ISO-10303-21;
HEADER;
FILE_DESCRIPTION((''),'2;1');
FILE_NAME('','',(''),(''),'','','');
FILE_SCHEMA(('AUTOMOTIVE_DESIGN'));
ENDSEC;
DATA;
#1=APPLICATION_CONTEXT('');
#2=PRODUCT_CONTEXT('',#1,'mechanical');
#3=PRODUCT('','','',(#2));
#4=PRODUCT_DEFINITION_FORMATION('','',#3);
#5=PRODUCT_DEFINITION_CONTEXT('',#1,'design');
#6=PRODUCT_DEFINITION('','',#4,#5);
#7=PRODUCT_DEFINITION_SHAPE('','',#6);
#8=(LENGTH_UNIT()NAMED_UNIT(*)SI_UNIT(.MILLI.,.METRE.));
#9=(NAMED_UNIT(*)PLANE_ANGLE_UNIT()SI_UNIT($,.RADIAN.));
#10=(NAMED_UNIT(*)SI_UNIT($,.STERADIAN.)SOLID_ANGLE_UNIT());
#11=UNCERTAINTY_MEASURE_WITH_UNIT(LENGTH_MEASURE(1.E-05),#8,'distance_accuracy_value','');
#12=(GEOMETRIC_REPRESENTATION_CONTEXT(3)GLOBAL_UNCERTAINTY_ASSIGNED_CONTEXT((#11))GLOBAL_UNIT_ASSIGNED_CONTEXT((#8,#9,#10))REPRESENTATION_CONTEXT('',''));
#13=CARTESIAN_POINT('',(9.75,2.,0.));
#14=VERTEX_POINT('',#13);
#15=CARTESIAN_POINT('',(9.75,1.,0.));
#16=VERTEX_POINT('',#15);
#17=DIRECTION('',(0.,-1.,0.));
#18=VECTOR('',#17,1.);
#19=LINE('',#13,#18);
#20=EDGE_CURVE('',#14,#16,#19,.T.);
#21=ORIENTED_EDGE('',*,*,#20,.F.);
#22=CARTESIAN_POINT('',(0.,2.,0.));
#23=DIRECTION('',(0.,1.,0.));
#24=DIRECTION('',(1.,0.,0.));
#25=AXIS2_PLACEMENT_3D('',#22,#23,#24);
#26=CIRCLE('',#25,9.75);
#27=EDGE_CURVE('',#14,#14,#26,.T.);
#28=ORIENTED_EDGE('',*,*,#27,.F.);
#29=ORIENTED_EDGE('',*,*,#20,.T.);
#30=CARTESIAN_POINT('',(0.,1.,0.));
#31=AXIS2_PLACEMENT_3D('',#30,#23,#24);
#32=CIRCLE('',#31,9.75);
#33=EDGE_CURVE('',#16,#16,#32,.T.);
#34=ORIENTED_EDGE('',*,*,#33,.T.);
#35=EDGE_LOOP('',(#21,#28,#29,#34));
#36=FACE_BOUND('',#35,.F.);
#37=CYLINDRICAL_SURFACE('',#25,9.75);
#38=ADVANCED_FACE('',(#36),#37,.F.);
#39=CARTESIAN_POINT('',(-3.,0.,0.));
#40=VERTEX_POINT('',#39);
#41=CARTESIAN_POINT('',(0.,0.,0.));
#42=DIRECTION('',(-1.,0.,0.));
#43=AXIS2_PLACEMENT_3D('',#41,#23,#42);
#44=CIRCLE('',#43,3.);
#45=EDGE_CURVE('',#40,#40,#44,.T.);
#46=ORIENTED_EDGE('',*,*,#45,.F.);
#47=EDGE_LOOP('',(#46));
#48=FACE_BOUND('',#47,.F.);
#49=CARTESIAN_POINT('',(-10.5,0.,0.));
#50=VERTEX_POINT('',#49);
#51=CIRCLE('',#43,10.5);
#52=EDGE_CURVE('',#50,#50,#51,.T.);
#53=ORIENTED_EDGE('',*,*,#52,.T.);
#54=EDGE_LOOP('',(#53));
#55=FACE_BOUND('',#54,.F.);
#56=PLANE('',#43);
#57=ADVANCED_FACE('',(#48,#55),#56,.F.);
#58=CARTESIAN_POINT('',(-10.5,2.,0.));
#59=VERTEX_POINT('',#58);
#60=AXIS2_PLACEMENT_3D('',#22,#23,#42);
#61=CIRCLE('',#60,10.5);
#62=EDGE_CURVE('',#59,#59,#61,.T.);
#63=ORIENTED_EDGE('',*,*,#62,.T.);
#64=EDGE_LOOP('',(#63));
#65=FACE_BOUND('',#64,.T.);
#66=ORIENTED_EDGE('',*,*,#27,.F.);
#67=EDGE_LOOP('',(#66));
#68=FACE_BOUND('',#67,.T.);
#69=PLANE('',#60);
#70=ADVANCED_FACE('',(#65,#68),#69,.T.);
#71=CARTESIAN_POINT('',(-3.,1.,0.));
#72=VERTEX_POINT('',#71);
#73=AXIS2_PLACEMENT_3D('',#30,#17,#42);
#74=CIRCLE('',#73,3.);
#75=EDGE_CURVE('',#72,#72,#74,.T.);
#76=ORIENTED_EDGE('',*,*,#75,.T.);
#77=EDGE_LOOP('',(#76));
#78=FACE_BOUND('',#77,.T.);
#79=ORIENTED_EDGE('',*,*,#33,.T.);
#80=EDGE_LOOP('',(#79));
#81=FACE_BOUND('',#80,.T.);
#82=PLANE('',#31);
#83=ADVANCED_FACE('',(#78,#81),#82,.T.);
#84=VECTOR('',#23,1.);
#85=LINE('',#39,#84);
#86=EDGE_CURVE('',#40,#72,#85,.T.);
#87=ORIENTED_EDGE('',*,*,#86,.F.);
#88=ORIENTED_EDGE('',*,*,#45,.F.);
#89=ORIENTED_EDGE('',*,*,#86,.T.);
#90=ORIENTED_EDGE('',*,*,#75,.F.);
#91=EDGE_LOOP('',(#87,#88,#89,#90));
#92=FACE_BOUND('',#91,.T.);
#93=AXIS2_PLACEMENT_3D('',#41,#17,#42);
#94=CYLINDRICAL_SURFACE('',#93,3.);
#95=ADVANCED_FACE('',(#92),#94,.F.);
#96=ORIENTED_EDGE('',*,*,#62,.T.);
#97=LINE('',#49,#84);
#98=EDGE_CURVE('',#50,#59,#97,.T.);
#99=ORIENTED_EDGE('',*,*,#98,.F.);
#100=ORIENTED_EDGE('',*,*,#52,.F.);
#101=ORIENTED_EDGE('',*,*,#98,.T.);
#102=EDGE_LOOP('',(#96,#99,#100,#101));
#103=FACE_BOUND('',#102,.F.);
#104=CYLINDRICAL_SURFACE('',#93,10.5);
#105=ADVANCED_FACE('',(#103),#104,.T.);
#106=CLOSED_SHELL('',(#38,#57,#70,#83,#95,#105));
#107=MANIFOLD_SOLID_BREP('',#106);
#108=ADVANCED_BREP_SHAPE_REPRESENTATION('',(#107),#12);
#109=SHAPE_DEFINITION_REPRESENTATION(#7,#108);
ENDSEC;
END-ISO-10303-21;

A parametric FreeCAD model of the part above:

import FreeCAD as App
import Part
import Sketcher

V = App.Vector
Q = App.Units.Quantity

doc = App.newDocument("Part")
body = doc.addObject("PartDesign::Body", "Body")

sketch1 = body.newObject("Sketcher::SketchObject", "Sketch")
sketch1.AttachmentSupport = (doc.getObject("XZ_Plane"), [""])
sketch1.MapMode = "FlatFace"
sketch1.addGeometry([
    Part.Circle(V(0, 0, 0), V(0, 0, 1), 10.5),
    Part.Circle(V(0, 0, 0), V(0, 0, 1), 3),
], False)
sketch1.addConstraint([
    Sketcher.Constraint("Coincident", 0, 3, -1, 1),
    Sketcher.Constraint("Coincident", 1, 3, -1, 1),
    Sketcher.Constraint("Diameter", 0, Q("21 mm")),
    Sketcher.Constraint("Diameter", 1, Q("6 mm")),
])
pad1 = body.newObject("PartDesign::Pad", "Pad")
pad1.Profile = sketch1
pad1.Length = 2
pad1.Reversed = True

sketch2 = body.newObject("Sketcher::SketchObject", "Sketch001")
sketch2.AttachmentSupport = (doc.getObject("XZ_Plane"), [""])
sketch2.MapMode = "FlatFace"
sketch2.AttachmentOffset = App.Placement(V(0, 0, -2), App.Rotation())
sketch2.addGeometry(Part.Circle(V(0, 0, 0), V(0, 0, 1), 10), False)
sketch2.addConstraint([
    Sketcher.Constraint("Coincident", 0, 3, -1, 1),
    Sketcher.Constraint("Diameter", 0, Q("19.5 mm")),
])
pocket1 = body.newObject("PartDesign::Pocket", "Pocket")
pocket1.Profile = sketch2
pocket1.Length = 1
pocket1.Reversed = True

doc.recompute()
